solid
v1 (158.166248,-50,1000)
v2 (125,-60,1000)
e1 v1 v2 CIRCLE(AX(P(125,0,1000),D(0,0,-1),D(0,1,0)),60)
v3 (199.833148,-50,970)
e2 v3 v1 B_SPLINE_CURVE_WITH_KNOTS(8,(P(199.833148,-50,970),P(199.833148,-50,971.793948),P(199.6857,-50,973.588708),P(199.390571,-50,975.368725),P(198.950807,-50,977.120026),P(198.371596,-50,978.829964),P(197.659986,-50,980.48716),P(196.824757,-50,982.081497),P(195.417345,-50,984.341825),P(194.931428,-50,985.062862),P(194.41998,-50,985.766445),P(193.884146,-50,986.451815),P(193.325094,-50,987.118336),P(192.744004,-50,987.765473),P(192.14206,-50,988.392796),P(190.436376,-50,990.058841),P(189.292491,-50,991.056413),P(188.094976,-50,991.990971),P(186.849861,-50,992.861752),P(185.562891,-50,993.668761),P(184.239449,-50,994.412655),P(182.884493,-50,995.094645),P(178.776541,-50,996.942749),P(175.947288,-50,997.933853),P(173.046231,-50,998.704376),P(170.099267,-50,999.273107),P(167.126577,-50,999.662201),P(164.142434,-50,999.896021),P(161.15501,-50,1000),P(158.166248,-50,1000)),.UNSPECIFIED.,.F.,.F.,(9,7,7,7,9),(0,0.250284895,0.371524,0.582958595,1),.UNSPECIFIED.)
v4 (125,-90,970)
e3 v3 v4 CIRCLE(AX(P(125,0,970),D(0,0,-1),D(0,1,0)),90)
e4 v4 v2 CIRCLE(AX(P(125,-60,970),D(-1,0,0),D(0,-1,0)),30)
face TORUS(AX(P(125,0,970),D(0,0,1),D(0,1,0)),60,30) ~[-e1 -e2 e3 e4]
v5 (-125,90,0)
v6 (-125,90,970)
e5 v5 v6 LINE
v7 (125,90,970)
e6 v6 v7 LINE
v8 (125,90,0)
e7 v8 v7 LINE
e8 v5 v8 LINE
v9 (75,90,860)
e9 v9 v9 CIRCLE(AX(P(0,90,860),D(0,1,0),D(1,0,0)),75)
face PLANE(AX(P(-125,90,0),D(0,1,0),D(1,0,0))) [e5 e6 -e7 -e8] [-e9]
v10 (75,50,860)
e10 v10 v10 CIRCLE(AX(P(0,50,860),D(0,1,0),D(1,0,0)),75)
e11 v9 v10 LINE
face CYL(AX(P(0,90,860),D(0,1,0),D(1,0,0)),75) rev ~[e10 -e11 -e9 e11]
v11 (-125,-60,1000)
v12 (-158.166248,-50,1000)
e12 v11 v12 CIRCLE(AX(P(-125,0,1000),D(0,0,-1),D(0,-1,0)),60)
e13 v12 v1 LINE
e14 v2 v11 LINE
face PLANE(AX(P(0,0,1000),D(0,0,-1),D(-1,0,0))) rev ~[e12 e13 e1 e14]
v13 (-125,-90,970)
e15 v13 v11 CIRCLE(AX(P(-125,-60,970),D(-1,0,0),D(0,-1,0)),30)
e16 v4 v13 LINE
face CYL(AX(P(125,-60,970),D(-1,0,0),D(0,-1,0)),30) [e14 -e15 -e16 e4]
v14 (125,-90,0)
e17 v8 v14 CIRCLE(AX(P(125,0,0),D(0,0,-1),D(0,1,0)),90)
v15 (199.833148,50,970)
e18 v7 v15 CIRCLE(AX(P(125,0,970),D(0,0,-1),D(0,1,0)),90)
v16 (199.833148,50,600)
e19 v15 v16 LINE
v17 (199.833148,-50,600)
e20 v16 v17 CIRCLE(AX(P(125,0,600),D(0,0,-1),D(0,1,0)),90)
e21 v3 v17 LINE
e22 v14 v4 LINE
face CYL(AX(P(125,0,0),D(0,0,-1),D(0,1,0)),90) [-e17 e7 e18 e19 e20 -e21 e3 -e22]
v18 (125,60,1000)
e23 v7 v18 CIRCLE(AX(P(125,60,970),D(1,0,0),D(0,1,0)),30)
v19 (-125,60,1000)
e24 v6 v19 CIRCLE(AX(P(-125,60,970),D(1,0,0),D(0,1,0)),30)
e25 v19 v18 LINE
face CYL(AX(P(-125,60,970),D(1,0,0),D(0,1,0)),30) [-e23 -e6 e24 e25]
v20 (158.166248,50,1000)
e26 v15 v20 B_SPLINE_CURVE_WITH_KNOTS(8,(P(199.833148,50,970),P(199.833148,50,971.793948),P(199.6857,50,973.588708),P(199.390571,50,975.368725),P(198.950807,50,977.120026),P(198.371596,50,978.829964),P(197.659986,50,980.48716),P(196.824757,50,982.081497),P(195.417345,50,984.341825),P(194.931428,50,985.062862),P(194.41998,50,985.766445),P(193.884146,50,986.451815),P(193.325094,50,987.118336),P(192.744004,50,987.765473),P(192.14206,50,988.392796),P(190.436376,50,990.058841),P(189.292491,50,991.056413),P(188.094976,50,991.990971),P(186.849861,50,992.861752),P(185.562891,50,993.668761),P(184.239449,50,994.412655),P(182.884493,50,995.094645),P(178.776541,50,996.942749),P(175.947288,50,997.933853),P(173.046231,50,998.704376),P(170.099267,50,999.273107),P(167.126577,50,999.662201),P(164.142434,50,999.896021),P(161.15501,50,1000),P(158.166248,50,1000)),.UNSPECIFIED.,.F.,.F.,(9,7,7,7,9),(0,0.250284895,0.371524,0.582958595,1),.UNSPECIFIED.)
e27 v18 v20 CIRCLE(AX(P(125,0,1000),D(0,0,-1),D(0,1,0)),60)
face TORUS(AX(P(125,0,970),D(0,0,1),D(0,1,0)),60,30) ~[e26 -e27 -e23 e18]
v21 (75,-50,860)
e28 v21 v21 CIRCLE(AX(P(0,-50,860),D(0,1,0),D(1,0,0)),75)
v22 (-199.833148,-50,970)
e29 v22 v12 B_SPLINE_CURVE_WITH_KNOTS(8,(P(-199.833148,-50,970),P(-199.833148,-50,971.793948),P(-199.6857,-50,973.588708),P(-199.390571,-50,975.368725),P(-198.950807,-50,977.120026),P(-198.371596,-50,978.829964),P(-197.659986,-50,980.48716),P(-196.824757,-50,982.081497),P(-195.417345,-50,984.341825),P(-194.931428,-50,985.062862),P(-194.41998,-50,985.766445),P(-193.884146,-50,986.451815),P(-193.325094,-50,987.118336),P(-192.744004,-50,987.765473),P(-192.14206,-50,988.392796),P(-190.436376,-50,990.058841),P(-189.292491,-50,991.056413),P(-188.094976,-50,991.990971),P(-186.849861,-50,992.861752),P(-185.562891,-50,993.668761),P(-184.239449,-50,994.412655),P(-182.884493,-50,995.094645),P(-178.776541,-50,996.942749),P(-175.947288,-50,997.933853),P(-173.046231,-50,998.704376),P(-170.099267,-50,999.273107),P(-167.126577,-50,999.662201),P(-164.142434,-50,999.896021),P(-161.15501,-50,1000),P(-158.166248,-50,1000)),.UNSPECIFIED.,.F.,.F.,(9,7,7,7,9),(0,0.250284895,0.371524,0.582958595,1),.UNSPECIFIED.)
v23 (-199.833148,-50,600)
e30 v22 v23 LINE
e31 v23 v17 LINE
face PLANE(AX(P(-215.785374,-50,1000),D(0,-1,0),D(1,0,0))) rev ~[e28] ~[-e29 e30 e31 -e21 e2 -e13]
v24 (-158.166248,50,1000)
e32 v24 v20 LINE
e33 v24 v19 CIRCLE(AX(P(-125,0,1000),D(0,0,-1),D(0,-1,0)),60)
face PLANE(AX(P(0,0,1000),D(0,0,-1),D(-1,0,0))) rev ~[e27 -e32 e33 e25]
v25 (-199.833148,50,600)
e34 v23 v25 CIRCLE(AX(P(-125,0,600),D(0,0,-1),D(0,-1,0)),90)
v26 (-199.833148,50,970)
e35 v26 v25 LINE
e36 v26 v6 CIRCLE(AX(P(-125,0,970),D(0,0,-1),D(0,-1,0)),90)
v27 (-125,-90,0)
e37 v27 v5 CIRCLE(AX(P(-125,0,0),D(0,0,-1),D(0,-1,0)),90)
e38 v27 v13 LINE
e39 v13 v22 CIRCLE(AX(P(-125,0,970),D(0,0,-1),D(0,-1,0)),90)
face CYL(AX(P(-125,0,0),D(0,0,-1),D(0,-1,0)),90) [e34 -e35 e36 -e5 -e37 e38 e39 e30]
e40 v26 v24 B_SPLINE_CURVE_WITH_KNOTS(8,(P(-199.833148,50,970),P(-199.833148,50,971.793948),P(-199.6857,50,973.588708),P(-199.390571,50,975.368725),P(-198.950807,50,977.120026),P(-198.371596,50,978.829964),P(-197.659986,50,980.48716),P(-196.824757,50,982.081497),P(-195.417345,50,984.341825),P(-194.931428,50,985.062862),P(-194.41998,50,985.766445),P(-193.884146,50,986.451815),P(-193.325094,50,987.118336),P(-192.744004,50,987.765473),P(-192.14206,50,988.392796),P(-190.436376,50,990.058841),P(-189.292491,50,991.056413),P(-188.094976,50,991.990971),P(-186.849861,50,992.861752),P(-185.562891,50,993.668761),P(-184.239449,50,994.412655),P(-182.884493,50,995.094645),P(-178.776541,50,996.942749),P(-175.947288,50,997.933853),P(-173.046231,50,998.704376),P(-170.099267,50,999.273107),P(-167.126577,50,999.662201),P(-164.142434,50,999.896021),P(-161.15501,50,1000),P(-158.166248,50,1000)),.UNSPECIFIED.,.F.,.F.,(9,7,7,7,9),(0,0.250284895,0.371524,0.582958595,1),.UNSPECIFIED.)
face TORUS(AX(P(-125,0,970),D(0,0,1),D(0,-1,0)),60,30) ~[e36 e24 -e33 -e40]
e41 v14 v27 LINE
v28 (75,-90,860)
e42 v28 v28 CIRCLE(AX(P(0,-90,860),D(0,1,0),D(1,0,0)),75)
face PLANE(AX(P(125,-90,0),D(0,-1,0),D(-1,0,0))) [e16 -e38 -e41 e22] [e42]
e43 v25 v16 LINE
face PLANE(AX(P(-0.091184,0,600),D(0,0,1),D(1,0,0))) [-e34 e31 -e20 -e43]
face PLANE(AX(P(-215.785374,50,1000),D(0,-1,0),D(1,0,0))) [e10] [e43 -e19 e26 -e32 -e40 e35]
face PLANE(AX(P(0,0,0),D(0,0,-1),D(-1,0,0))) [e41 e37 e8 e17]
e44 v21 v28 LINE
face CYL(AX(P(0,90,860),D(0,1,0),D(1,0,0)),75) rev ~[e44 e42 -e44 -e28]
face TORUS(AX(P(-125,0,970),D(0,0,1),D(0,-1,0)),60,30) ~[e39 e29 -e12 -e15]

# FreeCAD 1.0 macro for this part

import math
import FreeCAD as App
import Part
import Sketcher


def edges_at(feature, points):
    """Names of the edges that pass closest to the given points."""
    edges = feature.Shape.Edges
    near = lambda p: min(range(len(edges)), key=lambda i: edges[i].distToShape(Part.Vertex(*p))[0])
    return sorted({f"Edge{near(p) + 1}" for p in points})


def add_polygon(sketch, points):
    """Adds a closed chain of lines whose ends are joined by coincident constraints."""
    first, n = sketch.GeometryCount, len(points)
    for a, b in zip(points, points[1:] + points[:1]):
        sketch.addGeometry(Part.LineSegment(App.Vector(*a, 0), App.Vector(*b, 0)), False)
    for i in range(n):
        sketch.addConstraint(Sketcher.Constraint("Coincident", first + i, 2, first + (i + 1) % n, 1))

doc = App.newDocument("Part")
params = doc.addObject("Spreadsheet::Sheet", "Params")
for row, (alias, value) in enumerate([
    ("sketch1_radius", "90 mm"),
    ("sketch1_width", "250 mm"),
    ("pad1_length", "1000 mm"),
    ("fillet_radius", "30 mm"),
    ("sketch2_height", "100 mm"),
    ("pocket1_length", "400 mm"),
    ("sketch3_diameter", "150 mm"),
], start=1):
    params.set(f"A{row}", alias)
    params.set(f"B{row}", "=" + value)
    params.setAlias(f"B{row}", alias)

body = doc.addObject("PartDesign::Body", "Body")

# Sketch on XY plane
sketch1 = body.newObject("Sketcher::SketchObject", "Sketch")
sketch1.AttachmentSupport = (doc.getObject("XY_Plane"), [""])
sketch1.MapMode = "FlatFace"
sketch1.addGeometry(Part.LineSegment(App.Vector(125, 90, 0), App.Vector(-125, 90, 0)), False)
sketch1.addGeometry(Part.ArcOfCircle(Part.Circle(App.Vector(-125, 0, 0), App.Vector(0, 0, 1), 90), math.radians(90), math.radians(270)), False)
sketch1.addGeometry(Part.LineSegment(App.Vector(-125, -90, 0), App.Vector(125, -90, 0)), False)
sketch1.addGeometry(Part.ArcOfCircle(Part.Circle(App.Vector(125, 0, 0), App.Vector(0, 0, 1), 90), math.radians(-90), math.radians(90)), False)
sketch1.addConstraint(Sketcher.Constraint("Tangent", 0, 2, 1, 1))
sketch1.addConstraint(Sketcher.Constraint("Tangent", 1, 2, 2, 1))
sketch1.addConstraint(Sketcher.Constraint("Tangent", 2, 2, 3, 1))
sketch1.addConstraint(Sketcher.Constraint("Tangent", 3, 2, 0, 1))
sketch1.addConstraint(Sketcher.Constraint("Horizontal", 0))
sketch1.addConstraint(Sketcher.Constraint("Horizontal", 2))
sketch1.addConstraint(Sketcher.Constraint("Symmetric", 1, 3, 3, 3, -1, 1))
sketch1.addConstraint(Sketcher.Constraint("Radius", 1, 90.0))
sketch1.addConstraint(Sketcher.Constraint("DistanceX", 0, 2, 0, 1, 250.0))
sketch1.setExpression("Constraints[7]", "Params.sketch1_radius")
sketch1.setExpression("Constraints[8]", "Params.sketch1_width")
pad1 = body.newObject("PartDesign::Pad", "Pad")
pad1.Profile = sketch1
pad1.setExpression("Length", "Params.pad1_length")
doc.recompute()

fillet = body.newObject("PartDesign::Fillet", "Fillet")
fillet.Base = (pad1, edges_at(pad1, [
    (215, 0, 1000),
    (0, 90, 1000),
    (-215, 0, 1000),
    (0, -90, 1000),
]))
fillet.setExpression("Radius", "Params.fillet_radius")

# Sketch on XY plane
sketch2 = body.newObject("Sketcher::SketchObject", "Sketch001")
sketch2.AttachmentSupport = (doc.getObject("XY_Plane"), [""])
sketch2.MapMode = "FlatFace"
sketch2.AttachmentOffset = App.Placement(App.Vector(0, 0, 1000), App.Rotation())
add_polygon(sketch2, [(-216, 50), (-216, -50), (216, -50), (216, 50)])  # lines 0-3
sketch2.addConstraint(Sketcher.Constraint("Vertical", 0))
sketch2.addConstraint(Sketcher.Constraint("Horizontal", 1))
sketch2.addConstraint(Sketcher.Constraint("Vertical", 2))
sketch2.addConstraint(Sketcher.Constraint("Horizontal", 3))
sketch2.addConstraint(Sketcher.Constraint("DistanceY", 0, 2, 0, 1, 100.0))
sketch2.addConstraint(Sketcher.Constraint("DistanceY", 0, 2, -1, 1, 50.0))
sketch2.addConstraint(Sketcher.Constraint("DistanceX", 1, 1, 1, 2, 431.388381))
sketch2.addConstraint(Sketcher.Constraint("DistanceX", 0, 2, -1, 1, 215.785374))
sketch2.setExpression("Constraints[8]", "Params.sketch2_height")
pocket1 = body.newObject("PartDesign::Pocket", "Pocket")
pocket1.Profile = sketch2
pocket1.setExpression("Length", "Params.pocket1_length")

# Sketch on XZ plane
sketch3 = body.newObject("Sketcher::SketchObject", "Sketch002")
sketch3.AttachmentSupport = (doc.getObject("XZ_Plane"), [""])
sketch3.MapMode = "FlatFace"
sketch3.AttachmentOffset = App.Placement(App.Vector(0, 0, -90), App.Rotation())
sketch3.addGeometry(Part.Circle(App.Vector(0, 860, 0), App.Vector(0, 0, 1), 75), False)
sketch3.addConstraint(Sketcher.Constraint("PointOnObject", 0, 3, -2))
sketch3.addConstraint(Sketcher.Constraint("Diameter", 0, 150.0))
sketch3.addConstraint(Sketcher.Constraint("DistanceY", -1, 1, 0, 3, 860.0))
sketch3.setExpression("Constraints[1]", "Params.sketch3_diameter")
pocket2 = body.newObject("PartDesign::Pocket", "Pocket001")
pocket2.Profile = sketch3
pocket2.Type = "ThroughAll"
pocket2.Reversed = True

doc.recompute()
